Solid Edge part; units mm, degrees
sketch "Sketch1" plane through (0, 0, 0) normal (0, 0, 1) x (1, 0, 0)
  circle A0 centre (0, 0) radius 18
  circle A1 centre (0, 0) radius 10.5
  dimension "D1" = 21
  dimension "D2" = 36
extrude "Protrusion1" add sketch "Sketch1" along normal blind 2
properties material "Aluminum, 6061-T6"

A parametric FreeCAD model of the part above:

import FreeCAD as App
import Part
import Sketcher

doc = App.newDocument("Part")
body = doc.addObject("PartDesign::Body", "Body")

sketch1 = doc.addObject("Sketcher::SketchObject", "Sketch")
body.addObject(sketch1)
sketch1.AttachmentSupport = (doc.XY_Plane, [""])
sketch1.MapMode = "FlatFace"
sketch1.addGeometry([
    Part.Circle(App.Vector(0, 0, 0), App.Vector(0, 0, 1), 18),
    Part.Circle(App.Vector(0, 0, 0), App.Vector(0, 0, 1), 10),
], False)
sketch1.addConstraint([
    Sketcher.Constraint("Coincident", 0, 3, -1, 1),
    Sketcher.Constraint("Coincident", 1, 3, -1, 1),
    Sketcher.Constraint("Diameter", 0, 36.0),
    Sketcher.Constraint("Diameter", 1, 21.0),
])
pad1 = doc.addObject("PartDesign::Pad", "Pad")
body.addObject(pad1)
pad1.Profile = sketch1
pad1.Length = 2

doc.recompute()
